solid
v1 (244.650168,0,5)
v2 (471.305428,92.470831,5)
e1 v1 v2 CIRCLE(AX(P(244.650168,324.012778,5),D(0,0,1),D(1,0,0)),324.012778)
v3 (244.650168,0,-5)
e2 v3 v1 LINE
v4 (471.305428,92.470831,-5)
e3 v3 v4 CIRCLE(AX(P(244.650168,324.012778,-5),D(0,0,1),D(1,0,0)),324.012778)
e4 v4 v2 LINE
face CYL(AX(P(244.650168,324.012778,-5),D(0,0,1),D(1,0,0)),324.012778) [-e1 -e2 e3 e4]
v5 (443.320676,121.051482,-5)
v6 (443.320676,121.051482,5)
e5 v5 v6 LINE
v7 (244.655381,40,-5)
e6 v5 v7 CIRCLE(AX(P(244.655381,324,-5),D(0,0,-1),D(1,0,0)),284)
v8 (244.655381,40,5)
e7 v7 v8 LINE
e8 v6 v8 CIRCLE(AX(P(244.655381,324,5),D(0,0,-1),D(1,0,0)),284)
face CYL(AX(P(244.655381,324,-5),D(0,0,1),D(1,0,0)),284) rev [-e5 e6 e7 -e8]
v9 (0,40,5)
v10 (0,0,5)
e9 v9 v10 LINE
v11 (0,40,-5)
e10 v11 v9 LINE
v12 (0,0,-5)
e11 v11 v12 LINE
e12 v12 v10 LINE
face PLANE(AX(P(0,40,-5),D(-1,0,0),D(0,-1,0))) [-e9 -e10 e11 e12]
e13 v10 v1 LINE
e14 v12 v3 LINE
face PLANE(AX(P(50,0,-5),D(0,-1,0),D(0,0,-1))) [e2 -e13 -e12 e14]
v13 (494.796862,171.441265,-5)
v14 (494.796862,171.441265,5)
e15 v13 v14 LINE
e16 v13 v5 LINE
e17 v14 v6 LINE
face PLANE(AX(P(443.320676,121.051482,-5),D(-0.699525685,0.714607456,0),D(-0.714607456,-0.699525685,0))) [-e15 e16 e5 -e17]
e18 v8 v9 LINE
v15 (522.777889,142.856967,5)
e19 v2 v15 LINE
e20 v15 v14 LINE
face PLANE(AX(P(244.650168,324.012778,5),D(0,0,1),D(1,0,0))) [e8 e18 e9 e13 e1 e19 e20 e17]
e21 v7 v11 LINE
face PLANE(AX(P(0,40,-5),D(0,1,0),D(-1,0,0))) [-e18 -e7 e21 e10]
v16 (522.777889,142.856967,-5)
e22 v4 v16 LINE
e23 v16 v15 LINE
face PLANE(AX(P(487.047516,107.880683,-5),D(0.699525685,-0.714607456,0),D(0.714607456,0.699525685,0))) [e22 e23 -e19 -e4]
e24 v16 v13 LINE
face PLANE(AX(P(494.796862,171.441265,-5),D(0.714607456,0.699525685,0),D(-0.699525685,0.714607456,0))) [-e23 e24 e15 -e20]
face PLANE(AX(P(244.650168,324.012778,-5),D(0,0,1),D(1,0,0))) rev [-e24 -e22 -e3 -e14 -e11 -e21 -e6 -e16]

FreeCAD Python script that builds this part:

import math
import FreeCAD as App
import Part
import Sketcher

V = App.Vector
Q = App.Units.Quantity

doc = App.newDocument("Part")
body = doc.addObject("PartDesign::Body", "Body")

sketch1 = body.newObject("Sketcher::SketchObject", "Sketch")
sketch1.AttachmentSupport = (doc.getObject("XY_Plane"), [""])
sketch1.MapMode = "FlatFace"
sketch1.addGeometry(Part.ArcOfCircle(Part.Circle(V(244.655381, 324, 0), V(0, 0, 1), 284), math.radians(-90), math.radians(-45.611038)), False)
sketch1.addGeometry(Part.LineSegment(V(244.655381, 40, 0), V(0, 40, 0)), False)
sketch1.addGeometry(Part.LineSegment(V(0, 40, 0), V(0, 0, 0)), False)
sketch1.addGeometry(Part.LineSegment(V(0, 0, 0), V(244.650168, 0, 0)), False)
sketch1.addGeometry(Part.ArcOfCircle(Part.Circle(V(244.650168, 324.012778, 0), V(0, 0, 1), 324.012778), math.radians(-90), math.radians(-45.611038)), False)
sketch1.addGeometry(Part.LineSegment(V(471.305428, 92.470831, 0), V(522.777889, 142.856967, 0)), False)
sketch1.addGeometry(Part.LineSegment(V(522.777889, 142.856967, 0), V(494.796862, 171.441265, 0)), False)
sketch1.addGeometry(Part.LineSegment(V(494.796862, 171.441265, 0), V(459.066489, 136.464981, 0)), False)
sketch1.addGeometry(Part.LineSegment(V(459.066489, 136.464981, 0), V(443.320676, 121.051482, 0)), False)
sketch1.addConstraint(Sketcher.Constraint("Tangent", 0, 1, 1, 1))
sketch1.addConstraint(Sketcher.Constraint("Coincident", 1, 2, 2, 1))
sketch1.addConstraint(Sketcher.Constraint("Coincident", 2, 2, 3, 1))
sketch1.addConstraint(Sketcher.Constraint("Tangent", 3, 2, 4, 1))
sketch1.addConstraint(Sketcher.Constraint("Tangent", 4, 2, 5, 1))
sketch1.addConstraint(Sketcher.Constraint("Coincident", 5, 2, 6, 1))
sketch1.addConstraint(Sketcher.Constraint("Coincident", 6, 2, 7, 1))
sketch1.addConstraint(Sketcher.Constraint("Coincident", 7, 2, 8, 1))
sketch1.addConstraint(Sketcher.Constraint("Tangent", 8, 2, 0, 2))
sketch1.addConstraint(Sketcher.Constraint("Horizontal", 1))
sketch1.addConstraint(Sketcher.Constraint("Vertical", 2))
sketch1.addConstraint(Sketcher.Constraint("Horizontal", 3))
sketch1.addConstraint(Sketcher.Constraint("Coincident", 2, 2, -1, 1))
sketch1.addConstraint(Sketcher.Constraint("Perpendicular", 5, 6))
sketch1.addConstraint(Sketcher.Constraint("Perpendicular", 6, 7))
sketch1.addConstraint(Sketcher.Constraint("Parallel", 7, 8))
sketch1.addConstraint(Sketcher.Constraint("Radius", 0, Q("284 mm")))
sketch1.addConstraint(Sketcher.Constraint("DistanceY", 2, 2, 2, 1, Q("40 mm")))
sketch1.addConstraint(Sketcher.Constraint("Distance", 6, Q("40 mm")))
sketch1.addConstraint(Sketcher.Constraint("Distance", 7, Q("50 mm")))
sketch1.addConstraint(Sketcher.Constraint("Distance", 5, Q("72.029001 mm")))
sketch1.addConstraint(Sketcher.Constraint("Radius", 4, Q("324.012778 mm")))
sketch1.addConstraint(Sketcher.Constraint("DistanceX", 1, 2, 1, 1, Q("244.655381 mm")))
sketch1.addConstraint(Sketcher.Constraint("DistanceY", 5, 2, 6, 2, Q("28.584298 mm")))
pad1 = body.newObject("PartDesign::Pad", "Pad")
pad1.Profile = sketch1
pad1.Length = 10
pad1.Midplane = True

doc.recompute()
